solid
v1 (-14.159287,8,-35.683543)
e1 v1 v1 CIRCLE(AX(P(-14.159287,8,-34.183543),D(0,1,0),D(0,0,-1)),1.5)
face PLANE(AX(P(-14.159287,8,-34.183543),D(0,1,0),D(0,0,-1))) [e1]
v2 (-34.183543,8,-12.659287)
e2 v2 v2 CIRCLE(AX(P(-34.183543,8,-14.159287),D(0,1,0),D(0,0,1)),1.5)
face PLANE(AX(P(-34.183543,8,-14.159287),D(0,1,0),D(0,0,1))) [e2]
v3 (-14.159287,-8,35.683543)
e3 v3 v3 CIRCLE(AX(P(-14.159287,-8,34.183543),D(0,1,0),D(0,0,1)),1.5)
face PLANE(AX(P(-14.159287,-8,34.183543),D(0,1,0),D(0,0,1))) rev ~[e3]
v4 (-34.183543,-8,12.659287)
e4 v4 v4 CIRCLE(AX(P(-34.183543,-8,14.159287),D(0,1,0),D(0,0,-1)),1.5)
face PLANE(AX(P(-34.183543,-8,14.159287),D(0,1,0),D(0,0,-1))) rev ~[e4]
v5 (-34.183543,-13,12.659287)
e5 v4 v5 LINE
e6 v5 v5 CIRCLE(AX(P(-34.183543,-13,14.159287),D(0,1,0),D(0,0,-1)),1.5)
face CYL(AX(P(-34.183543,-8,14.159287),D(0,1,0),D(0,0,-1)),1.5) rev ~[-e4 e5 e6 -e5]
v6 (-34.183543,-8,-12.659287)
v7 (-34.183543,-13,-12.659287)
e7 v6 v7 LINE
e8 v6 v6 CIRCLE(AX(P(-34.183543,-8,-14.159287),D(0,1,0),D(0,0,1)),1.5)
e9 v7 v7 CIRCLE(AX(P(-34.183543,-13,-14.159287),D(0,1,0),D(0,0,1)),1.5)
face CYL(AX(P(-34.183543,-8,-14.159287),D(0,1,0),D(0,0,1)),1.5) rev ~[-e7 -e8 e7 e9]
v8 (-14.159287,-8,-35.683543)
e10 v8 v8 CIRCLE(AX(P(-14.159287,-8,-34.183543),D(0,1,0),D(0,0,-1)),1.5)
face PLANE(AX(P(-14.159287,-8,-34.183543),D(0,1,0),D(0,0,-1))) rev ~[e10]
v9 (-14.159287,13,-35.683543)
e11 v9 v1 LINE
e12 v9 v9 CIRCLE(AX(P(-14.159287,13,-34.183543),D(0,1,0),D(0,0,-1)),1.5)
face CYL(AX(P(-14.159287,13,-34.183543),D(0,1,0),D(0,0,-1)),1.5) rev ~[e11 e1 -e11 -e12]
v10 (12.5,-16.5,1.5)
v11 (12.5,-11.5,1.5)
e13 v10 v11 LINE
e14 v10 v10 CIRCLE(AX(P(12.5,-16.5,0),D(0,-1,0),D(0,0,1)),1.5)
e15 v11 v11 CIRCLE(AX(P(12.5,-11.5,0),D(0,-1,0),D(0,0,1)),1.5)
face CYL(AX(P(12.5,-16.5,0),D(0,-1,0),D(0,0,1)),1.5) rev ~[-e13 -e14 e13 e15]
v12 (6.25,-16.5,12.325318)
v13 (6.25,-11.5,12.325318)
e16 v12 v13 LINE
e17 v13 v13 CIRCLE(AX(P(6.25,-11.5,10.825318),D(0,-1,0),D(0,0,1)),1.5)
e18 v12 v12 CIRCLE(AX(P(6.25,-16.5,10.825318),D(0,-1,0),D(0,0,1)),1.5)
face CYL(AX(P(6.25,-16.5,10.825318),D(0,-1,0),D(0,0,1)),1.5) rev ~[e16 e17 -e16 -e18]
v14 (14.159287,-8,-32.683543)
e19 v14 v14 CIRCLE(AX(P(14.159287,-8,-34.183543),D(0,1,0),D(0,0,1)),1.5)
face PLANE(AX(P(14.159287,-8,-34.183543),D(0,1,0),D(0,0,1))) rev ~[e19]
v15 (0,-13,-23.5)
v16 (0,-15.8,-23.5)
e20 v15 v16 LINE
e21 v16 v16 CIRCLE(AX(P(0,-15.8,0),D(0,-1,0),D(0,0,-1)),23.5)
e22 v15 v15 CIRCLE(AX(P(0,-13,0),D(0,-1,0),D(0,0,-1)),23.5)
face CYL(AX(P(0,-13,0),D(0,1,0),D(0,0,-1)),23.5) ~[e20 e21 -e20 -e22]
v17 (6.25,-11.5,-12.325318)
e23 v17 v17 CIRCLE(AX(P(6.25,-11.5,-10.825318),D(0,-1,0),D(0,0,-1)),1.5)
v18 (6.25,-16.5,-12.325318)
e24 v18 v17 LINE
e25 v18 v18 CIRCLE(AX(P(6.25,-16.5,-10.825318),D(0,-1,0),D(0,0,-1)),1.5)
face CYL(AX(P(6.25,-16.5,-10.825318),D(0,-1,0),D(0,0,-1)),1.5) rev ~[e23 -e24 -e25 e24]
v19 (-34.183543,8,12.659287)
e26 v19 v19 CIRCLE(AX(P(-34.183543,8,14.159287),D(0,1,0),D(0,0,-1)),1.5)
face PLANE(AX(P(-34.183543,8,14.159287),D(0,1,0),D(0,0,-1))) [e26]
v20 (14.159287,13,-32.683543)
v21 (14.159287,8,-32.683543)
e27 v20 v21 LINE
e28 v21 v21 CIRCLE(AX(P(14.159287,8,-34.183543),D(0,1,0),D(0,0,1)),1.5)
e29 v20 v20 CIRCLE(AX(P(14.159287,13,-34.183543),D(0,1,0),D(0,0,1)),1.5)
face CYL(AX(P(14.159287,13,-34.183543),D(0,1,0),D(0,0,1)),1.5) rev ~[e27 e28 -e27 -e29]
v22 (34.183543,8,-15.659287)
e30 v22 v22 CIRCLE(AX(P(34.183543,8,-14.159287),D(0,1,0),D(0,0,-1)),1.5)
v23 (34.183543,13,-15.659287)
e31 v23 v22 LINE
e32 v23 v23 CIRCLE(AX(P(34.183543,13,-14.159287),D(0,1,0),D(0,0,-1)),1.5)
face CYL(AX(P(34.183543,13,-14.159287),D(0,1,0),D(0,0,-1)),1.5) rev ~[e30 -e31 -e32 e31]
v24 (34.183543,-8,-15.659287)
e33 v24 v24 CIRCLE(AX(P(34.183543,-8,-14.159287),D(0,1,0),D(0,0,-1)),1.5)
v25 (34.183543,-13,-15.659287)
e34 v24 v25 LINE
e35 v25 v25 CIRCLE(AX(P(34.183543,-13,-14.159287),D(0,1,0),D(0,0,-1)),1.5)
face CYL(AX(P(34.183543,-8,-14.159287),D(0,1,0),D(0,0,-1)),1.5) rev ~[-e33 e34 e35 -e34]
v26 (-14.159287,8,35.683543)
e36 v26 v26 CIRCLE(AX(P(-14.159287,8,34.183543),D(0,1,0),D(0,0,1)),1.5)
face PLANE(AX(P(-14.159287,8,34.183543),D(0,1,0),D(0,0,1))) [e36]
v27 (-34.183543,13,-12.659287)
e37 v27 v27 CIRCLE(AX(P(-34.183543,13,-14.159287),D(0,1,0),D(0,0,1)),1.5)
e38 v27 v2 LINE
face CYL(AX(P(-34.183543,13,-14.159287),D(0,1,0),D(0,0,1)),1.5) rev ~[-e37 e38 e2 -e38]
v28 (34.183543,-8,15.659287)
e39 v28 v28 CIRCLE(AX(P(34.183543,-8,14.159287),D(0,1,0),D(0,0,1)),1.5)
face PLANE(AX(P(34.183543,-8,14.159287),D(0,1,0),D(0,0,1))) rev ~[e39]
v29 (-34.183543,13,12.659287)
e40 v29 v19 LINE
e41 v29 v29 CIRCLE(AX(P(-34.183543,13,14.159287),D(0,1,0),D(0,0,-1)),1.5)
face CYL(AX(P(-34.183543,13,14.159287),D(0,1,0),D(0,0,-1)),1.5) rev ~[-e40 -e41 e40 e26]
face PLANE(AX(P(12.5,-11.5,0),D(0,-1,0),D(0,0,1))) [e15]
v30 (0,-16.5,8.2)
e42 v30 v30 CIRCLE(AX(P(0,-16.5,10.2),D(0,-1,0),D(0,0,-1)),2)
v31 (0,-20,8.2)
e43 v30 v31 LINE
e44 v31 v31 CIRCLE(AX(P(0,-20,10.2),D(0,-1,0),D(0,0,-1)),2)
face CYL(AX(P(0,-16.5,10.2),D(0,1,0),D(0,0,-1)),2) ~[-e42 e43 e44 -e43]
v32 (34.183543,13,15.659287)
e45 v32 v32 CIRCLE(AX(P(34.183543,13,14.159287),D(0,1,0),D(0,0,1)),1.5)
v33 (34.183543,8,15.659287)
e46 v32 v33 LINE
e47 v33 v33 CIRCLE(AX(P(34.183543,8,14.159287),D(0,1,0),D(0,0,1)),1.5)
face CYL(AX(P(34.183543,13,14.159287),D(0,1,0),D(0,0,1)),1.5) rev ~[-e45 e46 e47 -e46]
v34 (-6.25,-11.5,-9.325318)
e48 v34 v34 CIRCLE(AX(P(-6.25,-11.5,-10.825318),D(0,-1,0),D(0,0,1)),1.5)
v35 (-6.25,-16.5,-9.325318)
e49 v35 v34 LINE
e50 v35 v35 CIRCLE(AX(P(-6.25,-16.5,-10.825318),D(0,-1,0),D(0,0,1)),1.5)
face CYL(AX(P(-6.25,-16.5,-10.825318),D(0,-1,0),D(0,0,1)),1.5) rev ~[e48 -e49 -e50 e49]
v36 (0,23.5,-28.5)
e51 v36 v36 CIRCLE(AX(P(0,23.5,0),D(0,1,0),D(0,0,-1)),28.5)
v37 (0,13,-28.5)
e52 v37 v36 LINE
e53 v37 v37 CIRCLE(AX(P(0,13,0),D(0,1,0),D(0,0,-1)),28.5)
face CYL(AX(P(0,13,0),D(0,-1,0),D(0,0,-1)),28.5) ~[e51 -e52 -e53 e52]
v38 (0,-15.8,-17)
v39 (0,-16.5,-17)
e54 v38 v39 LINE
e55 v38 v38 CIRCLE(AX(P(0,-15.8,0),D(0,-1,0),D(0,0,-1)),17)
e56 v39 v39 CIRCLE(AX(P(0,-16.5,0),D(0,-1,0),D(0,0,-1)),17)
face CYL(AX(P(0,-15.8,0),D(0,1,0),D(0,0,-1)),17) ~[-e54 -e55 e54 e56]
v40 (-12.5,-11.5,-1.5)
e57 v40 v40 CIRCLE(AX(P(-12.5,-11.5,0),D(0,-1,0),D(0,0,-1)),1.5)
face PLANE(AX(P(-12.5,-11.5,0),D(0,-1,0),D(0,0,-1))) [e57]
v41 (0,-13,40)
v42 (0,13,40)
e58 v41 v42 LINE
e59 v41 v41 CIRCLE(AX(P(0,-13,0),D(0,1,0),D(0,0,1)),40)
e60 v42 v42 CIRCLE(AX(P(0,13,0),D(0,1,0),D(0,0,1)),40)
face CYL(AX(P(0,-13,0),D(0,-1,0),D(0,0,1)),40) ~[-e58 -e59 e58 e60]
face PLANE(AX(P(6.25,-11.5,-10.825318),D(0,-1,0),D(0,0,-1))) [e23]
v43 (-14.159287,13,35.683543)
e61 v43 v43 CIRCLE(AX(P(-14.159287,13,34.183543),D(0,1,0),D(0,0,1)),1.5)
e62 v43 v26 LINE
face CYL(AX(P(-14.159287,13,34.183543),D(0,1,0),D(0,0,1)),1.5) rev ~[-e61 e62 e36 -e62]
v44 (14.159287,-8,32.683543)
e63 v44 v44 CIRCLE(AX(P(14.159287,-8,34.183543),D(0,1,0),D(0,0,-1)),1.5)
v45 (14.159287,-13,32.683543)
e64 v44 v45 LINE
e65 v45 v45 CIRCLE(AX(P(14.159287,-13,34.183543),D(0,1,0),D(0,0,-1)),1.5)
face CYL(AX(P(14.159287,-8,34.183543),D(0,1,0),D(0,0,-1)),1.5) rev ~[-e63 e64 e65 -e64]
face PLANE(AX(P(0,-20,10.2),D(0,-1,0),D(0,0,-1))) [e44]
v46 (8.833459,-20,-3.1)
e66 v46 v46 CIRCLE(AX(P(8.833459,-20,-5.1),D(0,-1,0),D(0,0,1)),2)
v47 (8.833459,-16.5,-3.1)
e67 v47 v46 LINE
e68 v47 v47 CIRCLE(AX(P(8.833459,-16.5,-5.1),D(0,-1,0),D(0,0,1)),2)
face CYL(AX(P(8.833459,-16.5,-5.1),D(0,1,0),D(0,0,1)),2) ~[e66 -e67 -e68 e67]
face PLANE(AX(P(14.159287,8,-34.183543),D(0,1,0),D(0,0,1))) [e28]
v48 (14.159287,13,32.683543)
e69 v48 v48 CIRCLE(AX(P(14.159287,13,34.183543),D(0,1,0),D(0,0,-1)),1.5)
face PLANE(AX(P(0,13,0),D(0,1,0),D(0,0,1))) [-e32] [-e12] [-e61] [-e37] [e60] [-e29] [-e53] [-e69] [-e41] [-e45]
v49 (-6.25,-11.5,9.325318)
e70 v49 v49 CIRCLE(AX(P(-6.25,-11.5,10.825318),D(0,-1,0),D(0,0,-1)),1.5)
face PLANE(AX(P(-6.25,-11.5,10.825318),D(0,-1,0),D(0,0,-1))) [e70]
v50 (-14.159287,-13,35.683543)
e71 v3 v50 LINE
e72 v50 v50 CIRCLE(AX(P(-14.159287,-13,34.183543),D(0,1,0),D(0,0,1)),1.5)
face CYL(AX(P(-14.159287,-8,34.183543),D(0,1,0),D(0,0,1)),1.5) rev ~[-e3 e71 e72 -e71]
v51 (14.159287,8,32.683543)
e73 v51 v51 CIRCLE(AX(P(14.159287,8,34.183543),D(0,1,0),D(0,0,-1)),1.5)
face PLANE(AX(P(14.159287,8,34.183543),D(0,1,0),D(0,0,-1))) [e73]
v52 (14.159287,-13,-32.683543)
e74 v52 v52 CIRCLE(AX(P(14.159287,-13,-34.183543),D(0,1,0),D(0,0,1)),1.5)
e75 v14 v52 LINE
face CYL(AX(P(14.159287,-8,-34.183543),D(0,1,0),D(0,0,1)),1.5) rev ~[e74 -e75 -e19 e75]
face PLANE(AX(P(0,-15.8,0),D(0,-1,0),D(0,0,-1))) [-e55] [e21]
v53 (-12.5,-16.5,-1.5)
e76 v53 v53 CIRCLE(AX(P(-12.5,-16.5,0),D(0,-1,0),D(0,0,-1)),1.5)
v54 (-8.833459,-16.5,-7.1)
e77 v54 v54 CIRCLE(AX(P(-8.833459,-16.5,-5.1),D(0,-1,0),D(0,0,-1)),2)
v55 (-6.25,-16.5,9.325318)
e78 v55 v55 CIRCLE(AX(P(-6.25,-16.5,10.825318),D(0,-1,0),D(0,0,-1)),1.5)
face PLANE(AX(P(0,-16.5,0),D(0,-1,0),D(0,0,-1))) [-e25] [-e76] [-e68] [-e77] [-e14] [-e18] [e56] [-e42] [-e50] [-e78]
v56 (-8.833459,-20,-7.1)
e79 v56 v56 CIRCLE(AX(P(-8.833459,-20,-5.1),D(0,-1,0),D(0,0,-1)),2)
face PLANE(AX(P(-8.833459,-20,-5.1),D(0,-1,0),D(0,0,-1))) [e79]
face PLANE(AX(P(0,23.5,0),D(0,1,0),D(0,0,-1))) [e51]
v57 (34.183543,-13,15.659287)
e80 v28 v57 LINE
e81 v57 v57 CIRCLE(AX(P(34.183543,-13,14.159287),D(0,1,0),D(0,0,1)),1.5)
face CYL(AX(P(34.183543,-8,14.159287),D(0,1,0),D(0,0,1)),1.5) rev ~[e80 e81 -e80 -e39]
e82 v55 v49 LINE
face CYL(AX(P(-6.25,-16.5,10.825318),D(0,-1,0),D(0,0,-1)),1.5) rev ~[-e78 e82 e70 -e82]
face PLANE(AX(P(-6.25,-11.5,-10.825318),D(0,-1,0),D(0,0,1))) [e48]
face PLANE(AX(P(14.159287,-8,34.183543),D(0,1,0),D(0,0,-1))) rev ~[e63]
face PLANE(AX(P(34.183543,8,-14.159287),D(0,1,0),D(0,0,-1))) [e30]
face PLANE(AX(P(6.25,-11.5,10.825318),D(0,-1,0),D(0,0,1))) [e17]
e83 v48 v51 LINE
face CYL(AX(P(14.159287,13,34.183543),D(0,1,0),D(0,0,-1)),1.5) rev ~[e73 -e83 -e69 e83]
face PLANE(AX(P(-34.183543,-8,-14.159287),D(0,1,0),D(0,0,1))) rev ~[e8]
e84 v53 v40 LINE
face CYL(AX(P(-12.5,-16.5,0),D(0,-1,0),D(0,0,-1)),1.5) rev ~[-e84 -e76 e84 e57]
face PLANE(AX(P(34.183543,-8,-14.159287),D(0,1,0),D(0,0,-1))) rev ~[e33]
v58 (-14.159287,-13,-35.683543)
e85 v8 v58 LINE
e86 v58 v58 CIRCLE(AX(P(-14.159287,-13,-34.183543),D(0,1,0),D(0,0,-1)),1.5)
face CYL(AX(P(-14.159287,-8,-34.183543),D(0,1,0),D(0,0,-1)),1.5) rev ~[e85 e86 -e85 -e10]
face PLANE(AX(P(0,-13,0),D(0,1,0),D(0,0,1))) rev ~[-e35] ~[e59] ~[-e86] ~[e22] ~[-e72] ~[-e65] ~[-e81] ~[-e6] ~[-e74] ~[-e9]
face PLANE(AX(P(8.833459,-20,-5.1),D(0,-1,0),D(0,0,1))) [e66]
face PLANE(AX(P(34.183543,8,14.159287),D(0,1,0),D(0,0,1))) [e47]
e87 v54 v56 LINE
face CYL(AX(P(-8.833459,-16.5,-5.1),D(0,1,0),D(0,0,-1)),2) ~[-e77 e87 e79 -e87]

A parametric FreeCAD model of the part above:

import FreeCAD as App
import Part
import Sketcher
from FreeCAD import Vector
Q = App.Units.Quantity

doc = App.newDocument("Part")
body = doc.addObject("PartDesign::Body", "Body")

sketch1 = doc.addObject("Sketcher::SketchObject", "Sketch")
body.addObject(sketch1)
sketch1.AttachmentSupport = (doc.XZ_Plane, [""])
sketch1.MapMode = "FlatFace"
sketch1.addGeometry(Part.Circle(Vector(0, 0, 0), Vector(0, 0, 1), 40), False)
sketch1.addConstraint([
    Sketcher.Constraint("Coincident", 0, 3, -1, 1),
    Sketcher.Constraint("Diameter", 0, Q("80 mm")),
])
pad1 = doc.addObject("PartDesign::Pad", "Pad")
body.addObject(pad1)
pad1.Profile = sketch1
pad1.Type = "TwoLengths"
pad1.Length = 13
pad1.Length2 = 13
pad1.Reversed = True

sketch2 = doc.addObject("Sketcher::SketchObject", "Sketch001")
body.addObject(sketch2)
sketch2.AttachmentSupport = (doc.XZ_Plane, [""])
sketch2.MapMode = "FlatFace"
sketch2.AttachmentOffset = App.Placement(Vector(0, 0, -13), App.Rotation())
sketch2.addGeometry(Part.Circle(Vector(0, 0, 0), Vector(0, 0, 1), 28), False)
sketch2.addConstraint([
    Sketcher.Constraint("Coincident", 0, 3, -1, 1),
    Sketcher.Constraint("Diameter", 0, Q("57 mm")),
])
pad2 = doc.addObject("PartDesign::Pad", "Pad001")
body.addObject(pad2)
pad2.Profile = sketch2
pad2.Length = 10.5
pad2.Reversed = True

sketch3 = doc.addObject("Sketcher::SketchObject", "Sketch002")
body.addObject(sketch3)
sketch3.AttachmentSupport = (doc.XZ_Plane, [""])
sketch3.MapMode = "FlatFace"
sketch3.AttachmentOffset = App.Placement(Vector(0, 0, 13), App.Rotation())
sketch3.addGeometry(Part.Circle(Vector(0, 0, 0), Vector(0, 0, 1), 24), False)
sketch3.addConstraint([
    Sketcher.Constraint("Coincident", 0, 3, -1, 1),
    Sketcher.Constraint("Diameter", 0, Q("47 mm")),
])
pad3 = doc.addObject("PartDesign::Pad", "Pad002")
body.addObject(pad3)
pad3.Profile = sketch3
pad3.Length = 2.8

sketch4 = doc.addObject("Sketcher::SketchObject", "Sketch003")
body.addObject(sketch4)
sketch4.AttachmentSupport = (doc.XZ_Plane, [""])
sketch4.MapMode = "FlatFace"
sketch4.AttachmentOffset = App.Placement(Vector(0, 0, 15.8), App.Rotation())
sketch4.addGeometry(Part.Circle(Vector(0, 0, 0), Vector(0, 0, 1), 17), False)
sketch4.addConstraint([
    Sketcher.Constraint("Coincident", 0, 3, -1, 1),
    Sketcher.Constraint("Diameter", 0, Q("34 mm")),
])
pad4 = doc.addObject("PartDesign::Pad", "Pad003")
body.addObject(pad4)
pad4.Profile = sketch4
pad4.Length = 0.7

sketch5 = doc.addObject("Sketcher::SketchObject", "Sketch004")
body.addObject(sketch5)
sketch5.AttachmentSupport = (doc.XZ_Plane, [""])
sketch5.MapMode = "FlatFace"
sketch5.AttachmentOffset = App.Placement(Vector(0, 0, -13), App.Rotation())
sketch5.addGeometry([
    Part.Circle(Vector(14.2, -34.2, 0), Vector(0, 0, 1), 1.5),
    Part.Circle(Vector(34.2, -14.2, 0), Vector(0, 0, 1), 1.5),
    Part.Circle(Vector(34.2, 14.2, 0), Vector(0, 0, 1), 1.5),
    Part.Circle(Vector(14.2, 34.2, 0), Vector(0, 0, 1), 1.5),
    Part.Circle(Vector(-14.2, 34.2, 0), Vector(0, 0, 1), 1.5),
    Part.Circle(Vector(-34.2, 14.2, 0), Vector(0, 0, 1), 1.5),
    Part.Circle(Vector(-34.2, -14.2, 0), Vector(0, 0, 1), 1.5),
    Part.Circle(Vector(-14.2, -34.2, 0), Vector(0, 0, 1), 1.5),
], False)
sketch5.addConstraint([
    Sketcher.Constraint("Equal", 0, 1),
    Sketcher.Constraint("Equal", 1, 2),
    Sketcher.Constraint("Equal", 2, 3),
    Sketcher.Constraint("Equal", 3, 4),
    Sketcher.Constraint("Equal", 4, 5),
    Sketcher.Constraint("Equal", 5, 6),
    Sketcher.Constraint("Equal", 6, 7),
    Sketcher.Constraint("Symmetric", 0, 3, 4, 3, -1, 1),
    Sketcher.Constraint("Symmetric", 1, 3, 5, 3, -1, 1),
    Sketcher.Constraint("Symmetric", 2, 3, 6, 3, -1, 1),
    Sketcher.Constraint("Symmetric", 3, 3, 7, 3, -1, 1),
    Sketcher.Constraint("Symmetric", 3, 3, 4, 3, -2),
    Sketcher.Constraint("Symmetric", 2, 3, 5, 3, -2),
    Sketcher.Constraint("Diameter", 0, Q("3 mm")),
    Sketcher.Constraint("DistanceY", 0, 3, 2, 3, Q("48.34283 mm")),
    Sketcher.Constraint("DistanceX", 4, 3, 2, 3, Q("48.34283 mm")),
    Sketcher.Constraint("DistanceX", -1, 1, 0, 3, Q("14.159287 mm")),
    Sketcher.Constraint("DistanceY", 0, 3, -1, 1, Q("34.183543 mm")),
])
pocket1 = doc.addObject("PartDesign::Pocket", "Pocket")
body.addObject(pocket1)
pocket1.Profile = sketch5
pocket1.Length = 5
pocket1.Reversed = True

sketch6 = doc.addObject("Sketcher::SketchObject", "Sketch005")
body.addObject(sketch6)
sketch6.AttachmentSupport = (doc.XZ_Plane, [""])
sketch6.MapMode = "FlatFace"
sketch6.AttachmentOffset = App.Placement(Vector(0, 0, 8), App.Rotation())
sketch6.addGeometry([
    Part.Circle(Vector(14.2, -34.2, 0), Vector(0, 0, 1), 1.5),
    Part.Circle(Vector(34.2, -14.2, 0), Vector(0, 0, 1), 1.5),
    Part.Circle(Vector(34.2, 14.2, 0), Vector(0, 0, 1), 1.5),
    Part.Circle(Vector(14.2, 34.2, 0), Vector(0, 0, 1), 1.5),
    Part.Circle(Vector(-14.2, 34.2, 0), Vector(0, 0, 1), 1.5),
    Part.Circle(Vector(-34.2, 14.2, 0), Vector(0, 0, 1), 1.5),
    Part.Circle(Vector(-34.2, -14.2, 0), Vector(0, 0, 1), 1.5),
    Part.Circle(Vector(-14.2, -34.2, 0), Vector(0, 0, 1), 1.5),
], False)
sketch6.addConstraint([
    Sketcher.Constraint("Equal", 0, 1),
    Sketcher.Constraint("Equal", 1, 2),
    Sketcher.Constraint("Equal", 2, 3),
    Sketcher.Constraint("Equal", 3, 4),
    Sketcher.Constraint("Equal", 4, 5),
    Sketcher.Constraint("Equal", 5, 6),
    Sketcher.Constraint("Equal", 6, 7),
    Sketcher.Constraint("Symmetric", 0, 3, 4, 3, -1, 1),
    Sketcher.Constraint("Symmetric", 1, 3, 5, 3, -1, 1),
    Sketcher.Constraint("Symmetric", 2, 3, 6, 3, -1, 1),
    Sketcher.Constraint("Symmetric", 3, 3, 7, 3, -1, 1),
    Sketcher.Constraint("Symmetric", 3, 3, 4, 3, -2),
    Sketcher.Constraint("Symmetric", 2, 3, 5, 3, -2),
    Sketcher.Constraint("Diameter", 0, Q("3 mm")),
    Sketcher.Constraint("DistanceY", 0, 3, 2, 3, Q("48.34283 mm")),
    Sketcher.Constraint("DistanceX", 4, 3, 2, 3, Q("48.34283 mm")),
    Sketcher.Constraint("DistanceX", -1, 1, 0, 3, Q("14.159287 mm")),
    Sketcher.Constraint("DistanceY", 0, 3, -1, 1, Q("34.183543 mm")),
])
pocket2 = doc.addObject("PartDesign::Pocket", "Pocket001")
body.addObject(pocket2)
pocket2.Profile = sketch6
pocket2.Length = 5
pocket2.Reversed = True

sketch7 = doc.addObject("Sketcher::SketchObject", "Sketch006")
body.addObject(sketch7)
sketch7.AttachmentSupport = (doc.XZ_Plane, [""])
sketch7.MapMode = "FlatFace"
sketch7.AttachmentOffset = App.Placement(Vector(0, 0, 16.5), App.Rotation())
sketch7.addGeometry([
    Part.Circle(Vector(-12.5, 0, 0), Vector(0, 0, 1), 1.5),
    Part.Circle(Vector(-6.2, 10.8, 0), Vector(0, 0, 1), 1.5),
    Part.Circle(Vector(-6.2, -10.8, 0), Vector(0, 0, 1), 1.5),
    Part.Circle(Vector(6.2, -10.8, 0), Vector(0, 0, 1), 1.5),
    Part.Circle(Vector(12.5, 0, 0), Vector(0, 0, 1), 1.5),
    Part.Circle(Vector(6.2, 10.8, 0), Vector(0, 0, 1), 1.5),
], False)
sketch7.addConstraint([
    Sketcher.Constraint("Equal", 0, 1),
    Sketcher.Constraint("Equal", 1, 2),
    Sketcher.Constraint("Equal", 2, 3),
    Sketcher.Constraint("Equal", 3, 4),
    Sketcher.Constraint("Equal", 4, 5),
    Sketcher.Constraint("Symmetric", 1, 3, 3, 3, -1, 1),
    Sketcher.Constraint("Symmetric", 0, 3, 4, 3, -1, 1),
    Sketcher.Constraint("Symmetric", 2, 3, 5, 3, -1, 1),
    Sketcher.Constraint("Symmetric", 2, 3, 3, 3, -2),
    Sketcher.Constraint("PointOnObject", 0, 3, -1),
    Sketcher.Constraint("Diameter", 0, Q("3 mm")),
    Sketcher.Constraint("DistanceX", 0, 3, 4, 3, Q("25 mm")),
    Sketcher.Constraint("DistanceX", 2, 3, 3, 3, Q("12.5 mm")),
    Sketcher.Constraint("DistanceY", -1, 1, 1, 3, Q("10.825318 mm")),
])
pocket3 = doc.addObject("PartDesign::Pocket", "Pocket002")
body.addObject(pocket3)
pocket3.Profile = sketch7
pocket3.Length = 5

sketch8 = doc.addObject("Sketcher::SketchObject", "Sketch007")
body.addObject(sketch8)
sketch8.AttachmentSupport = (doc.XZ_Plane, [""])
sketch8.MapMode = "FlatFace"
sketch8.AttachmentOffset = App.Placement(Vector(0, 0, 16.5), App.Rotation())
sketch8.addGeometry([
    Part.Circle(Vector(0, 10.2, 0), Vector(0, 0, 1), 2),
    Part.Circle(Vector(-8.8, -5.1, 0), Vector(0, 0, 1), 2),
    Part.Circle(Vector(8.8, -5.1, 0), Vector(0, 0, 1), 2),
], False)
sketch8.addConstraint([
    Sketcher.Constraint("Equal", 0, 1),
    Sketcher.Constraint("Equal", 1, 2),
    Sketcher.Constraint("Symmetric", 1, 3, 2, 3, -2),
    Sketcher.Constraint("PointOnObject", 0, 3, -2),
    Sketcher.Constraint("Diameter", 0, Q("4 mm")),
    Sketcher.Constraint("DistanceY", -1, 1, 0, 3, Q("10.2 mm")),
    Sketcher.Constraint("DistanceY", 1, 3, -1, 1, Q("5.1 mm")),
    Sketcher.Constraint("DistanceX", 1, 3, -1, 1, Q("8.833459 mm")),
])
pad5 = doc.addObject("PartDesign::Pad", "Pad004")
body.addObject(pad5)
pad5.Profile = sketch8
pad5.Length = 3.5

doc.recompute()
